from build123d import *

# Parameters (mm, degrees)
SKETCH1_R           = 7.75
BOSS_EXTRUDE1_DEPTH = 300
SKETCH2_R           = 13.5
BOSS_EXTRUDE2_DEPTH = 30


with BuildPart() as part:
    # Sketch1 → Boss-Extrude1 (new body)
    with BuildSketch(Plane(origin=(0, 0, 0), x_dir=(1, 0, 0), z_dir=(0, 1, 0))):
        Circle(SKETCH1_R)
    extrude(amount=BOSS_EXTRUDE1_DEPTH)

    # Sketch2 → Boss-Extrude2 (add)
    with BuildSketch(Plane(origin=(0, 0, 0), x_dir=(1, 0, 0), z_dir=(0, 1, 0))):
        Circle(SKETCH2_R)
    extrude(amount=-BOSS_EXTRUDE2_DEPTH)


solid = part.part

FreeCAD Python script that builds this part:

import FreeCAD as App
import Part
import Sketcher
from FreeCAD import Vector

doc = App.newDocument("Part")
body = doc.addObject("PartDesign::Body", "Body")

sketch1 = body.newObject("Sketcher::SketchObject", "Sketch")
sketch1.AttachmentSupport = (doc.getObject("XZ_Plane"), [""])
sketch1.MapMode = "FlatFace"
sketch1.addGeometry(Part.Circle(Vector(0, 0, 0), Vector(0, 0, 1), 7.75), False)
sketch1.addConstraint([
    Sketcher.Constraint("Coincident", 0, 3, -1, 1),
    Sketcher.Constraint("Diameter", 0, 15.5),
])
pad1 = body.newObject("PartDesign::Pad", "Pad")
pad1.Profile = sketch1
pad1.Length = 300
pad1.Reversed = True

sketch2 = body.newObject("Sketcher::SketchObject", "Sketch001")
sketch2.AttachmentSupport = (doc.getObject("XZ_Plane"), [""])
sketch2.MapMode = "FlatFace"
sketch2.addGeometry(Part.Circle(Vector(0, 0, 0), Vector(0, 0, 1), 13.5), False)
sketch2.addConstraint([
    Sketcher.Constraint("Coincident", 0, 3, -1, 1),
    Sketcher.Constraint("Diameter", 0, 27.0),
])
pad2 = body.newObject("PartDesign::Pad", "Pad001")
pad2.Profile = sketch2
pad2.Length = 30

doc.recompute()
